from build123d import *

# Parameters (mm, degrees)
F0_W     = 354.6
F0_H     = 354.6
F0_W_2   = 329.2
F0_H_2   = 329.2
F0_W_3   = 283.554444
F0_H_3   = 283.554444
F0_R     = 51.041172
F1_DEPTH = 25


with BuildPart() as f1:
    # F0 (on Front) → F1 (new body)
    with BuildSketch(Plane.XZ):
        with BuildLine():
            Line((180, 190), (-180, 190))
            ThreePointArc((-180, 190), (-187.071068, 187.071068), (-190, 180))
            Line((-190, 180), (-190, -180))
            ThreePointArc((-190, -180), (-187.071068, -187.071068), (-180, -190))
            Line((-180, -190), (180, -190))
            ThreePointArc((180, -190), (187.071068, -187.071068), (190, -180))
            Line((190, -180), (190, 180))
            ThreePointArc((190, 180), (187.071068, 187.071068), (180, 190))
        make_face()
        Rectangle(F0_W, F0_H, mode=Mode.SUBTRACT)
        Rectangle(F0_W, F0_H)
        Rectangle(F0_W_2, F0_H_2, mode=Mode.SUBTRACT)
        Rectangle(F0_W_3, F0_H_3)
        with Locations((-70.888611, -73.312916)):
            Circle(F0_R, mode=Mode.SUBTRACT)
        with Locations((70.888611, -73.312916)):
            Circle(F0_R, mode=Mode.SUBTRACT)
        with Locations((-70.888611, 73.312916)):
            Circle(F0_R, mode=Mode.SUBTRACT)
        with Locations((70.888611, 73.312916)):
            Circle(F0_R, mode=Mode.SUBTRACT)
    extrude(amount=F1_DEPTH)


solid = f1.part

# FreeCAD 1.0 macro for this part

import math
import FreeCAD as App
import Part
import Sketcher


def add_polygon(sketch, points):
    """Adds a closed chain of lines whose ends are joined by coincident constraints."""
    first, n = sketch.GeometryCount, len(points)
    for a, b in zip(points, points[1:] + points[:1]):
        sketch.addGeometry(Part.LineSegment(App.Vector(*a, 0), App.Vector(*b, 0)), False)
    for i in range(n):
        sketch.addConstraint(Sketcher.Constraint("Coincident", first + i, 2, first + (i + 1) % n, 1))

doc = App.newDocument("Part")
body = doc.addObject("PartDesign::Body", "Body")
body.AllowCompound = True

sketch1 = body.newObject("Sketcher::SketchObject", "Sketch")
sketch1.AttachmentSupport = (doc.getObject("XZ_Plane"), [""])
sketch1.MapMode = "FlatFace"
sketch1.addGeometry(Part.LineSegment(App.Vector(180, 190, 0), App.Vector(-180, 190, 0)), False)
sketch1.addGeometry(Part.ArcOfCircle(Part.Circle(App.Vector(-180, 180, 0), App.Vector(0, 0, 1), 10), math.radians(90), math.radians(180)), False)
sketch1.addGeometry(Part.LineSegment(App.Vector(-190, 180, 0), App.Vector(-190, -180, 0)), False)
sketch1.addGeometry(Part.ArcOfCircle(Part.Circle(App.Vector(-180, -180, 0), App.Vector(0, 0, 1), 10), math.radians(180), math.radians(270)), False)
sketch1.addGeometry(Part.LineSegment(App.Vector(-180, -190, 0), App.Vector(180, -190, 0)), False)
sketch1.addGeometry(Part.ArcOfCircle(Part.Circle(App.Vector(180, -180, 0), App.Vector(0, 0, 1), 10), math.radians(-90), math.radians(0)), False)
sketch1.addGeometry(Part.LineSegment(App.Vector(190, -180, 0), App.Vector(190, 180, 0)), False)
sketch1.addGeometry(Part.ArcOfCircle(Part.Circle(App.Vector(180, 180, 0), App.Vector(0, 0, 1), 10), math.radians(0), math.radians(90)), False)
add_polygon(sketch1, [(165, -165), (-165, -165), (-165, 165), (165, 165)])
add_polygon(sketch1, [(-142, 142), (-142, -142), (142, -142), (142, 142)])
sketch1.addGeometry(Part.Circle(App.Vector(-71, -73, 0), App.Vector(0, 0, 1), 51), False)
sketch1.addGeometry(Part.Circle(App.Vector(71, -73, 0), App.Vector(0, 0, 1), 51), False)
sketch1.addGeometry(Part.Circle(App.Vector(-71, 73, 0), App.Vector(0, 0, 1), 51), False)
sketch1.addGeometry(Part.Circle(App.Vector(71, 73, 0), App.Vector(0, 0, 1), 51), False)
sketch1.addConstraint(Sketcher.Constraint("Tangent", 0, 2, 1, 1))
sketch1.addConstraint(Sketcher.Constraint("Tangent", 1, 2, 2, 1))
sketch1.addConstraint(Sketcher.Constraint("Tangent", 2, 2, 3, 1))
sketch1.addConstraint(Sketcher.Constraint("Tangent", 3, 2, 4, 1))
sketch1.addConstraint(Sketcher.Constraint("Tangent", 4, 2, 5, 1))
sketch1.addConstraint(Sketcher.Constraint("Tangent", 5, 2, 6, 1))
sketch1.addConstraint(Sketcher.Constraint("Tangent", 6, 2, 7, 1))
sketch1.addConstraint(Sketcher.Constraint("Tangent", 7, 2, 0, 1))
sketch1.addConstraint(Sketcher.Constraint("Horizontal", 0))
sketch1.addConstraint(Sketcher.Constraint("Vertical", 2))
sketch1.addConstraint(Sketcher.Constraint("Horizontal", 4))
sketch1.addConstraint(Sketcher.Constraint("Vertical", 6))
sketch1.addConstraint(Sketcher.Constraint("Horizontal", 8))
sketch1.addConstraint(Sketcher.Constraint("Vertical", 9))
sketch1.addConstraint(Sketcher.Constraint("Horizontal", 10))
sketch1.addConstraint(Sketcher.Constraint("Vertical", 11))
sketch1.addConstraint(Sketcher.Constraint("Vertical", 12))
sketch1.addConstraint(Sketcher.Constraint("Horizontal", 13))
sketch1.addConstraint(Sketcher.Constraint("Vertical", 14))
sketch1.addConstraint(Sketcher.Constraint("Horizontal", 15))
sketch1.addConstraint(Sketcher.Constraint("Equal", 1, 3))
sketch1.addConstraint(Sketcher.Constraint("Equal", 3, 5))
sketch1.addConstraint(Sketcher.Constraint("Equal", 5, 7))
sketch1.addConstraint(Sketcher.Constraint("Equal", 16, 17))
sketch1.addConstraint(Sketcher.Constraint("Equal", 17, 18))
sketch1.addConstraint(Sketcher.Constraint("Equal", 18, 19))
sketch1.addConstraint(Sketcher.Constraint("Symmetric", 1, 3, 5, 3, -1, 1))
sketch1.addConstraint(Sketcher.Constraint("Symmetric", 17, 3, 18, 3, -1, 1))
sketch1.addConstraint(Sketcher.Constraint("Symmetric", 16, 3, 19, 3, -1, 1))
sketch1.addConstraint(Sketcher.Constraint("Symmetric", 8, 2, 10, 2, -1, 1))
sketch1.addConstraint(Sketcher.Constraint("Symmetric", 12, 2, 14, 2, -1, 1))
sketch1.addConstraint(Sketcher.Constraint("Symmetric", 16, 3, 17, 3, -2))
sketch1.addConstraint(Sketcher.Constraint("Equal", 4, 2))
sketch1.addConstraint(Sketcher.Constraint("Equal", 10, 9))
sketch1.addConstraint(Sketcher.Constraint("Equal", 15, 12))
sketch1.addConstraint(Sketcher.Constraint("Radius", 1, 9.999999))
sketch1.addConstraint(Sketcher.Constraint("DistanceX", 0, 2, 0, 1, 360.0))
sketch1.addConstraint(Sketcher.Constraint("DistanceX", 8, 2, 8, 1, 329.2))
sketch1.addConstraint(Sketcher.Constraint("Diameter", 16, 102.082344))
sketch1.addConstraint(Sketcher.Constraint("DistanceX", 13, 1, 13, 2, 283.554444))
sketch1.addConstraint(Sketcher.Constraint("DistanceX", 16, 3, -1, 1, 70.888611))
sketch1.addConstraint(Sketcher.Constraint("DistanceY", 16, 3, 18, 3, 146.625832))
pad1 = body.newObject("PartDesign::Pad", "Pad")
pad1.Profile = sketch1
pad1.Length = 25

doc.recompute()
